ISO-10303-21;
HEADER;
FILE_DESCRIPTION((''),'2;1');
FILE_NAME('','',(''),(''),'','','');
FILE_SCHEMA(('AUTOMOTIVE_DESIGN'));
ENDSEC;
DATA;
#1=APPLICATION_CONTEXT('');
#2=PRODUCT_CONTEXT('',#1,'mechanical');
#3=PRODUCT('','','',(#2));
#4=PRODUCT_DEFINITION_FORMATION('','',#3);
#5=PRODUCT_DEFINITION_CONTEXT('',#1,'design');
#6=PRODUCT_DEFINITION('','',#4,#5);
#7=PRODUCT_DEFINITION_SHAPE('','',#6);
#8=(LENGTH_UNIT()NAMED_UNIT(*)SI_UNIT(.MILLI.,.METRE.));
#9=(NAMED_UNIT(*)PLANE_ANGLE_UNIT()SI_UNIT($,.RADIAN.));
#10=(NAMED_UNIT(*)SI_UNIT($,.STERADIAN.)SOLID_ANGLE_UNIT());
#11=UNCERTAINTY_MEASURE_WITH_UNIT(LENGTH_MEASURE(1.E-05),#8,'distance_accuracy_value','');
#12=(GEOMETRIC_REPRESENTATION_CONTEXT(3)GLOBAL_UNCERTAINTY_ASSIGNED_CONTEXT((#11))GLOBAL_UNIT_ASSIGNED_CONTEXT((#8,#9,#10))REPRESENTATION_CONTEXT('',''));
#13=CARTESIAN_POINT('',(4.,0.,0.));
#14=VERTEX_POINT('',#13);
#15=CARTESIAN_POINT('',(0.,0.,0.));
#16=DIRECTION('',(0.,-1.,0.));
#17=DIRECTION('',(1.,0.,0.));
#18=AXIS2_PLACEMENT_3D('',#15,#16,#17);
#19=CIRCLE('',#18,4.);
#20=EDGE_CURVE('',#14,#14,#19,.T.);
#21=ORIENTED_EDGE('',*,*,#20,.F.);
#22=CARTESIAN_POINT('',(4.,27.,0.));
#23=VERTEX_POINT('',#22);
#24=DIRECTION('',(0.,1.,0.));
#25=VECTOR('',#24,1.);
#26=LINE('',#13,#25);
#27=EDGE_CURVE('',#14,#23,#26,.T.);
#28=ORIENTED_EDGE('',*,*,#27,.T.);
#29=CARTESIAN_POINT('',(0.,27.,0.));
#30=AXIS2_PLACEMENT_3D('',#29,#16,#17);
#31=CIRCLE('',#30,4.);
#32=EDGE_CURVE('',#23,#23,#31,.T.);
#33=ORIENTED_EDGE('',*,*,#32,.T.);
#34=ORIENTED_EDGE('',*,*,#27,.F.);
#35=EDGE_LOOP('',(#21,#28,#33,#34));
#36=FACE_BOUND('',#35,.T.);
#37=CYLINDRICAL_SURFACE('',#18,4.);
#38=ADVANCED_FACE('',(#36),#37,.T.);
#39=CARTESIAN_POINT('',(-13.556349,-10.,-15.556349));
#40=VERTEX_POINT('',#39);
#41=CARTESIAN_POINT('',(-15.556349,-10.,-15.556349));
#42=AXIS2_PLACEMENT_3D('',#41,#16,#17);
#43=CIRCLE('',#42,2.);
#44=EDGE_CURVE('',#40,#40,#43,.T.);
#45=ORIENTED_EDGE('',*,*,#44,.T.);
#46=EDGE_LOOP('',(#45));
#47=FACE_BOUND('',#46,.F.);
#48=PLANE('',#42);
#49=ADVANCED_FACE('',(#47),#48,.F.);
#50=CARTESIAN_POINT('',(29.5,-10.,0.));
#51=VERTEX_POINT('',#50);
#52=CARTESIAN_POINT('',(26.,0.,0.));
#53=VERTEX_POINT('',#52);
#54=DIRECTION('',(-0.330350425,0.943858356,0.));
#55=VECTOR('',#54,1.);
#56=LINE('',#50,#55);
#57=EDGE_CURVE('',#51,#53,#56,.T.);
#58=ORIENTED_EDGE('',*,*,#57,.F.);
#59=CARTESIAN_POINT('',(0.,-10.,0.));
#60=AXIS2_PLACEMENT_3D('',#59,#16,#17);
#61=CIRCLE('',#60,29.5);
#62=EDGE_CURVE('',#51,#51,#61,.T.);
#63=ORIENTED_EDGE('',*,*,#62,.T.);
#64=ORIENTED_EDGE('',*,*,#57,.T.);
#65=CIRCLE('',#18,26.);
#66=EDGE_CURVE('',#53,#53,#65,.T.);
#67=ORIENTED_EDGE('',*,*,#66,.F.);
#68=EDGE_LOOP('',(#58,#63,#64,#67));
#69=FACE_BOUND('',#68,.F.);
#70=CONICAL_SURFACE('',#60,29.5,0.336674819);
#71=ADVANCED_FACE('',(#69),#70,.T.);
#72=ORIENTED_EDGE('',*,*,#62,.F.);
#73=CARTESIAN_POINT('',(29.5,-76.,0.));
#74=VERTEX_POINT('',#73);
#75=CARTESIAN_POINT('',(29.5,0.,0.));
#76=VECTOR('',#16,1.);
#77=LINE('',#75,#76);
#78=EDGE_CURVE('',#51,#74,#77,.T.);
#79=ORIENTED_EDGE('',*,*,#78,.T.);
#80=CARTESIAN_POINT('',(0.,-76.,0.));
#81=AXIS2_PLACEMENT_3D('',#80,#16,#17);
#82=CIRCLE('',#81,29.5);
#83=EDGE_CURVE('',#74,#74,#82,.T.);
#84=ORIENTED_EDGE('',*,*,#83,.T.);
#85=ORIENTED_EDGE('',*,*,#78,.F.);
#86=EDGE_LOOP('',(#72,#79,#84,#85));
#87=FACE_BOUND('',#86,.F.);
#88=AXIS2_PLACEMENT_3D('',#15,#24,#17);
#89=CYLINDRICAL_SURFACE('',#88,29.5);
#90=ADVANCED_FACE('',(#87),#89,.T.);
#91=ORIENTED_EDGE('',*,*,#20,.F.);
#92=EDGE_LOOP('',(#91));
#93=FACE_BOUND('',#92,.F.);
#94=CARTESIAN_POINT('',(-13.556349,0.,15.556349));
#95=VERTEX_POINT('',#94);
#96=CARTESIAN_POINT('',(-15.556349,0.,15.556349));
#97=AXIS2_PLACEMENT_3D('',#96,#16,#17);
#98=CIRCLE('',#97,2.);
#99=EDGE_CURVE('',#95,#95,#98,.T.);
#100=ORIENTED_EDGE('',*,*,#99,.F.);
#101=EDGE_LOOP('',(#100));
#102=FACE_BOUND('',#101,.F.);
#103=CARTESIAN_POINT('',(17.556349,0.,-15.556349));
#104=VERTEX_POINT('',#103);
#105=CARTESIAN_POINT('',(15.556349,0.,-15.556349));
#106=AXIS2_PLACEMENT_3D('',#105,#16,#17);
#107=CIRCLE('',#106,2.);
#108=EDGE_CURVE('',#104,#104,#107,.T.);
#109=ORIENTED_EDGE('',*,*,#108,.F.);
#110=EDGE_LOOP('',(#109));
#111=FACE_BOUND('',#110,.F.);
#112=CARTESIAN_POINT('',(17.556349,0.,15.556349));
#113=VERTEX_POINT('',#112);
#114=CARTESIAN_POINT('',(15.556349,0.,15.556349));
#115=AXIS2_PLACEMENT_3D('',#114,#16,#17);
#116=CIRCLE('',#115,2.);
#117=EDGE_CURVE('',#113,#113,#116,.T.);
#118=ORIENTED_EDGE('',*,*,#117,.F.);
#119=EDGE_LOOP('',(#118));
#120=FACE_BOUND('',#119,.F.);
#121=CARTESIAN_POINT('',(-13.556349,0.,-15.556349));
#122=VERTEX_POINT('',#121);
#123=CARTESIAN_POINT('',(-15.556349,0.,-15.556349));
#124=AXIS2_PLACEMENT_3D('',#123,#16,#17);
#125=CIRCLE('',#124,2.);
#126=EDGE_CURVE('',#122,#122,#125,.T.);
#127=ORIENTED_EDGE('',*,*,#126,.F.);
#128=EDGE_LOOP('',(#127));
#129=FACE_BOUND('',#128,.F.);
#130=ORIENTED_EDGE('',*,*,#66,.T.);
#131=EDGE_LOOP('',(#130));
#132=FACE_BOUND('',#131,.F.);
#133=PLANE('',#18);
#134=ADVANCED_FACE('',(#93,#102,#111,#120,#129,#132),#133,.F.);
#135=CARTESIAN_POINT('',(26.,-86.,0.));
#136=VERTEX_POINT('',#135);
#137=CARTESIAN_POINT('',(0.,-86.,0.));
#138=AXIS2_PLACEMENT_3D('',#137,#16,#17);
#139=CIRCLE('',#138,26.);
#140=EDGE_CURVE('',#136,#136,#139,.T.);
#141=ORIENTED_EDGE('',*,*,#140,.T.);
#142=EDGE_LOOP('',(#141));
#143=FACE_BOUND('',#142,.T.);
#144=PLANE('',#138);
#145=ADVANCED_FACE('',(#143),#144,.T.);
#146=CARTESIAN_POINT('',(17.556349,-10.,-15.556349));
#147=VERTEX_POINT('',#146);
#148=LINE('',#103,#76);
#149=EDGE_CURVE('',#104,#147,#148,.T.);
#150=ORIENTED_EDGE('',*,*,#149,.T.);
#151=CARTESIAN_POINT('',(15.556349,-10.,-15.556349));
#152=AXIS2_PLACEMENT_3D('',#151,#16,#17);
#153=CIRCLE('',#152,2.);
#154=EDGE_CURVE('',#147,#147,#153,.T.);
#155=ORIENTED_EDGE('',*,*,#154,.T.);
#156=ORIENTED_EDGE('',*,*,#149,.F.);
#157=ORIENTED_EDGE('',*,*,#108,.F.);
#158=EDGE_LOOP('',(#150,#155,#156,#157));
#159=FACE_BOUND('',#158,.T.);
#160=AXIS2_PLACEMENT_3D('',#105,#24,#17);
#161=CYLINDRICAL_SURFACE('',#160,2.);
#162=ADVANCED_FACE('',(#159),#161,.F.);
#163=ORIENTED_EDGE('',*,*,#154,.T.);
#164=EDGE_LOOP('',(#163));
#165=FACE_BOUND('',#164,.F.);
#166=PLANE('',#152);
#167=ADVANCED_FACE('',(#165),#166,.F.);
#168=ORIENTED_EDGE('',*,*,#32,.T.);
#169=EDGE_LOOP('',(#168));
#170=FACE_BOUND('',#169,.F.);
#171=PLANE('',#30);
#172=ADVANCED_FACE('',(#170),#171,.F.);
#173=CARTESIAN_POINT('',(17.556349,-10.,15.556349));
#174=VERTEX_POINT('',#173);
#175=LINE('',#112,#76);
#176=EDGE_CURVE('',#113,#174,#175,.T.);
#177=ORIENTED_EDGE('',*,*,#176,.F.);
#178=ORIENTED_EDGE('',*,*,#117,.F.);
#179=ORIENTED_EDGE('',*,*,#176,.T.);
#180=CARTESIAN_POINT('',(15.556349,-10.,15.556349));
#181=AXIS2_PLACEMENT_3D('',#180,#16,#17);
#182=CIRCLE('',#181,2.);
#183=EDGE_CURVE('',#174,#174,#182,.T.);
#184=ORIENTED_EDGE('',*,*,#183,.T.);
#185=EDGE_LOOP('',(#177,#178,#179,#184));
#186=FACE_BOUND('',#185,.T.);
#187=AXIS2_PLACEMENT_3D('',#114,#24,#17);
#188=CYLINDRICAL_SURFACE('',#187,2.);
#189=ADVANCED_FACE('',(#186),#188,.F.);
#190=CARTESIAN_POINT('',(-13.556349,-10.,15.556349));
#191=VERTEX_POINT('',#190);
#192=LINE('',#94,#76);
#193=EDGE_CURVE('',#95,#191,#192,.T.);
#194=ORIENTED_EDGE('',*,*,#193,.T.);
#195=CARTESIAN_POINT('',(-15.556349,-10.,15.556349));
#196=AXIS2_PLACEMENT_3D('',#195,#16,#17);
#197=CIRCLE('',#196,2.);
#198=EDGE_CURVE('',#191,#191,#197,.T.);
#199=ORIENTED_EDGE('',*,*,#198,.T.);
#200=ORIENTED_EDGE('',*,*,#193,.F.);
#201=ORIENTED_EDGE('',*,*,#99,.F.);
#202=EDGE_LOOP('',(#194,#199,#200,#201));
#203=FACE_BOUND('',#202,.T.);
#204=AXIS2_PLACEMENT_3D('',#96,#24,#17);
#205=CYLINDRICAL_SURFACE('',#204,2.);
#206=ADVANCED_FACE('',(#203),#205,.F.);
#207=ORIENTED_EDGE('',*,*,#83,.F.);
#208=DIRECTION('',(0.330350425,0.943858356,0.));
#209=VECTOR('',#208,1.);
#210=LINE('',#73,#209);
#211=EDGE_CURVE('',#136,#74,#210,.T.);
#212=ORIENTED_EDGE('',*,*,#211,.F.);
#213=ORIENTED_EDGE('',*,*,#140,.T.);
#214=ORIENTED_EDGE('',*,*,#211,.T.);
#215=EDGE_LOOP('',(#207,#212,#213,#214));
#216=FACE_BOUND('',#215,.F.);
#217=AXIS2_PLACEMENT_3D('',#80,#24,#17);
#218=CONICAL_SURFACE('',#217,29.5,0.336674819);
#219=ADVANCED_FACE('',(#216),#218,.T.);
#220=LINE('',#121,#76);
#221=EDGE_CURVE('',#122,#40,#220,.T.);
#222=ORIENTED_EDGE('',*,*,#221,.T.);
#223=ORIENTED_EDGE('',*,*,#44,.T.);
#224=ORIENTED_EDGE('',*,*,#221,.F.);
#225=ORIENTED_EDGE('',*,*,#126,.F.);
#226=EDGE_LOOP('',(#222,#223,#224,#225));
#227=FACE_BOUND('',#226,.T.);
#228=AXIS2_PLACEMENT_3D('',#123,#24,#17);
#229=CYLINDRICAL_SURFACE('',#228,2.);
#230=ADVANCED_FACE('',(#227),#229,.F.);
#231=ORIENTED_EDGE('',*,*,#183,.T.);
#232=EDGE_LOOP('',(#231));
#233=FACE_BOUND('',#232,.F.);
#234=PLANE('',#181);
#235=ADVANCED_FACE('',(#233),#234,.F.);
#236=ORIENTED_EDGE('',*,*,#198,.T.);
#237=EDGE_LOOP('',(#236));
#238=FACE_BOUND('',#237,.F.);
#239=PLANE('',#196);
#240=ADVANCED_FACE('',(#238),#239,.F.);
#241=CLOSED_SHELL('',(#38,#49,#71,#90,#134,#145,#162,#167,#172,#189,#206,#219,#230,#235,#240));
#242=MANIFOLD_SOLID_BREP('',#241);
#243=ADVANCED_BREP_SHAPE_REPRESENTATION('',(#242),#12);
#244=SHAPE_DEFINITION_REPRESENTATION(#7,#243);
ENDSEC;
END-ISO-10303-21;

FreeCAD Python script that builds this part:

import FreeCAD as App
import Part
import Sketcher


def edges_at(feature, points):
    """Names of the edges that pass closest to the given points."""
    edges = feature.Shape.Edges
    near = lambda p: min(range(len(edges)), key=lambda i: edges[i].distToShape(Part.Vertex(*p))[0])
    return sorted({f"Edge{near(p) + 1}" for p in points})

doc = App.newDocument("Part")
params = doc.addObject("Spreadsheet::Sheet", "Params")
for row, (alias, value) in enumerate([
    ("sketch1_diameter", "59 mm"),
    ("pad1_length", "86 mm"),
    ("sketch2_diameter", "8 mm"),
    ("pad2_length", "27 mm"),
    ("sketch3_diameter", "4 mm"),
    ("pocket1_length", "10 mm"),
    ("chamfer_size", "10 mm"),
    ("chamfer_size2", "3.5 mm"),
    ("chamfer2_size", "3.5 mm"),
    ("chamfer2_size2", "10 mm"),
], start=1):
    params.set(f"A{row}", alias)
    params.set(f"B{row}", "=" + value)
    params.setAlias(f"B{row}", alias)

body = doc.addObject("PartDesign::Body", "Body")

# Sketch on XZ plane
sketch1 = body.newObject("Sketcher::SketchObject", "Sketch")
sketch1.AttachmentSupport = (doc.getObject("XZ_Plane"), [""])
sketch1.MapMode = "FlatFace"
sketch1.addGeometry(Part.Circle(App.Vector(0, 0, 0), App.Vector(0, 0, 1), 30), False)
sketch1.addConstraint(Sketcher.Constraint("Coincident", 0, 3, -1, 1))
sketch1.addConstraint(Sketcher.Constraint("Diameter", 0, 59.0))
sketch1.setExpression("Constraints[1]", "Params.sketch1_diameter")
pad1 = body.newObject("PartDesign::Pad", "Pad")
pad1.Profile = sketch1
pad1.setExpression("Length", "Params.pad1_length")

# Sketch on XZ plane
sketch2 = body.newObject("Sketcher::SketchObject", "Sketch001")
sketch2.AttachmentSupport = (doc.getObject("XZ_Plane"), [""])
sketch2.MapMode = "FlatFace"
sketch2.addGeometry(Part.Circle(App.Vector(0, 0, 0), App.Vector(0, 0, 1), 4), False)
sketch2.addConstraint(Sketcher.Constraint("Coincident", 0, 3, -1, 1))
sketch2.addConstraint(Sketcher.Constraint("Diameter", 0, 8.0))
sketch2.setExpression("Constraints[1]", "Params.sketch2_diameter")
pad2 = body.newObject("PartDesign::Pad", "Pad001")
pad2.Profile = sketch2
pad2.setExpression("Length", "Params.pad2_length")
pad2.Reversed = True

# Sketch on XZ plane
sketch3 = body.newObject("Sketcher::SketchObject", "Sketch002")
sketch3.AttachmentSupport = (doc.getObject("XZ_Plane"), [""])
sketch3.MapMode = "FlatFace"
sketch3.addGeometry(Part.Circle(App.Vector(15.6, 15.6, 0), App.Vector(0, 0, 1), 2), False)
sketch3.addGeometry(Part.Circle(App.Vector(-15.6, 15.6, 0), App.Vector(0, 0, 1), 2), False)
sketch3.addGeometry(Part.Circle(App.Vector(15.6, -15.6, 0), App.Vector(0, 0, 1), 2), False)
sketch3.addGeometry(Part.Circle(App.Vector(-15.6, -15.6, 0), App.Vector(0, 0, 1), 2), False)
sketch3.addConstraint(Sketcher.Constraint("Equal", 0, 1))
sketch3.addConstraint(Sketcher.Constraint("Equal", 1, 2))
sketch3.addConstraint(Sketcher.Constraint("Equal", 2, 3))
sketch3.addConstraint(Sketcher.Constraint("Symmetric", 1, 3, 2, 3, -1, 1))
sketch3.addConstraint(Sketcher.Constraint("Symmetric", 0, 3, 3, 3, -1, 1))
sketch3.addConstraint(Sketcher.Constraint("Symmetric", 0, 3, 1, 3, -2))
sketch3.addConstraint(Sketcher.Constraint("Diameter", 0, 4.0))
sketch3.addConstraint(Sketcher.Constraint("DistanceX", 1, 3, 0, 3, 31.112698))
sketch3.addConstraint(Sketcher.Constraint("DistanceY", 2, 3, 0, 3, 31.112698))
sketch3.setExpression("Constraints[6]", "Params.sketch3_diameter")
pocket1 = body.newObject("PartDesign::Pocket", "Pocket")
pocket1.Profile = sketch3
pocket1.setExpression("Length", "Params.pocket1_length")
pocket1.Reversed = True
doc.recompute()

chamfer = body.newObject("PartDesign::Chamfer", "Chamfer")
chamfer.Base = (pocket1, edges_at(pocket1, [(-29.5, 0, 0)]))
chamfer.ChamferType = "Two distances"
chamfer.setExpression("Size", "Params.chamfer_size")
chamfer.setExpression("Size2", "Params.chamfer_size2")
doc.recompute()

chamfer2 = body.newObject("PartDesign::Chamfer", "Chamfer001")
chamfer2.Base = (chamfer, edges_at(chamfer, [(-29.5, -86, 0)]))
chamfer2.ChamferType = "Two distances"
chamfer2.setExpression("Size", "Params.chamfer2_size")
chamfer2.setExpression("Size2", "Params.chamfer2_size2")
chamfer2.FlipDirection = True

doc.recompute()
